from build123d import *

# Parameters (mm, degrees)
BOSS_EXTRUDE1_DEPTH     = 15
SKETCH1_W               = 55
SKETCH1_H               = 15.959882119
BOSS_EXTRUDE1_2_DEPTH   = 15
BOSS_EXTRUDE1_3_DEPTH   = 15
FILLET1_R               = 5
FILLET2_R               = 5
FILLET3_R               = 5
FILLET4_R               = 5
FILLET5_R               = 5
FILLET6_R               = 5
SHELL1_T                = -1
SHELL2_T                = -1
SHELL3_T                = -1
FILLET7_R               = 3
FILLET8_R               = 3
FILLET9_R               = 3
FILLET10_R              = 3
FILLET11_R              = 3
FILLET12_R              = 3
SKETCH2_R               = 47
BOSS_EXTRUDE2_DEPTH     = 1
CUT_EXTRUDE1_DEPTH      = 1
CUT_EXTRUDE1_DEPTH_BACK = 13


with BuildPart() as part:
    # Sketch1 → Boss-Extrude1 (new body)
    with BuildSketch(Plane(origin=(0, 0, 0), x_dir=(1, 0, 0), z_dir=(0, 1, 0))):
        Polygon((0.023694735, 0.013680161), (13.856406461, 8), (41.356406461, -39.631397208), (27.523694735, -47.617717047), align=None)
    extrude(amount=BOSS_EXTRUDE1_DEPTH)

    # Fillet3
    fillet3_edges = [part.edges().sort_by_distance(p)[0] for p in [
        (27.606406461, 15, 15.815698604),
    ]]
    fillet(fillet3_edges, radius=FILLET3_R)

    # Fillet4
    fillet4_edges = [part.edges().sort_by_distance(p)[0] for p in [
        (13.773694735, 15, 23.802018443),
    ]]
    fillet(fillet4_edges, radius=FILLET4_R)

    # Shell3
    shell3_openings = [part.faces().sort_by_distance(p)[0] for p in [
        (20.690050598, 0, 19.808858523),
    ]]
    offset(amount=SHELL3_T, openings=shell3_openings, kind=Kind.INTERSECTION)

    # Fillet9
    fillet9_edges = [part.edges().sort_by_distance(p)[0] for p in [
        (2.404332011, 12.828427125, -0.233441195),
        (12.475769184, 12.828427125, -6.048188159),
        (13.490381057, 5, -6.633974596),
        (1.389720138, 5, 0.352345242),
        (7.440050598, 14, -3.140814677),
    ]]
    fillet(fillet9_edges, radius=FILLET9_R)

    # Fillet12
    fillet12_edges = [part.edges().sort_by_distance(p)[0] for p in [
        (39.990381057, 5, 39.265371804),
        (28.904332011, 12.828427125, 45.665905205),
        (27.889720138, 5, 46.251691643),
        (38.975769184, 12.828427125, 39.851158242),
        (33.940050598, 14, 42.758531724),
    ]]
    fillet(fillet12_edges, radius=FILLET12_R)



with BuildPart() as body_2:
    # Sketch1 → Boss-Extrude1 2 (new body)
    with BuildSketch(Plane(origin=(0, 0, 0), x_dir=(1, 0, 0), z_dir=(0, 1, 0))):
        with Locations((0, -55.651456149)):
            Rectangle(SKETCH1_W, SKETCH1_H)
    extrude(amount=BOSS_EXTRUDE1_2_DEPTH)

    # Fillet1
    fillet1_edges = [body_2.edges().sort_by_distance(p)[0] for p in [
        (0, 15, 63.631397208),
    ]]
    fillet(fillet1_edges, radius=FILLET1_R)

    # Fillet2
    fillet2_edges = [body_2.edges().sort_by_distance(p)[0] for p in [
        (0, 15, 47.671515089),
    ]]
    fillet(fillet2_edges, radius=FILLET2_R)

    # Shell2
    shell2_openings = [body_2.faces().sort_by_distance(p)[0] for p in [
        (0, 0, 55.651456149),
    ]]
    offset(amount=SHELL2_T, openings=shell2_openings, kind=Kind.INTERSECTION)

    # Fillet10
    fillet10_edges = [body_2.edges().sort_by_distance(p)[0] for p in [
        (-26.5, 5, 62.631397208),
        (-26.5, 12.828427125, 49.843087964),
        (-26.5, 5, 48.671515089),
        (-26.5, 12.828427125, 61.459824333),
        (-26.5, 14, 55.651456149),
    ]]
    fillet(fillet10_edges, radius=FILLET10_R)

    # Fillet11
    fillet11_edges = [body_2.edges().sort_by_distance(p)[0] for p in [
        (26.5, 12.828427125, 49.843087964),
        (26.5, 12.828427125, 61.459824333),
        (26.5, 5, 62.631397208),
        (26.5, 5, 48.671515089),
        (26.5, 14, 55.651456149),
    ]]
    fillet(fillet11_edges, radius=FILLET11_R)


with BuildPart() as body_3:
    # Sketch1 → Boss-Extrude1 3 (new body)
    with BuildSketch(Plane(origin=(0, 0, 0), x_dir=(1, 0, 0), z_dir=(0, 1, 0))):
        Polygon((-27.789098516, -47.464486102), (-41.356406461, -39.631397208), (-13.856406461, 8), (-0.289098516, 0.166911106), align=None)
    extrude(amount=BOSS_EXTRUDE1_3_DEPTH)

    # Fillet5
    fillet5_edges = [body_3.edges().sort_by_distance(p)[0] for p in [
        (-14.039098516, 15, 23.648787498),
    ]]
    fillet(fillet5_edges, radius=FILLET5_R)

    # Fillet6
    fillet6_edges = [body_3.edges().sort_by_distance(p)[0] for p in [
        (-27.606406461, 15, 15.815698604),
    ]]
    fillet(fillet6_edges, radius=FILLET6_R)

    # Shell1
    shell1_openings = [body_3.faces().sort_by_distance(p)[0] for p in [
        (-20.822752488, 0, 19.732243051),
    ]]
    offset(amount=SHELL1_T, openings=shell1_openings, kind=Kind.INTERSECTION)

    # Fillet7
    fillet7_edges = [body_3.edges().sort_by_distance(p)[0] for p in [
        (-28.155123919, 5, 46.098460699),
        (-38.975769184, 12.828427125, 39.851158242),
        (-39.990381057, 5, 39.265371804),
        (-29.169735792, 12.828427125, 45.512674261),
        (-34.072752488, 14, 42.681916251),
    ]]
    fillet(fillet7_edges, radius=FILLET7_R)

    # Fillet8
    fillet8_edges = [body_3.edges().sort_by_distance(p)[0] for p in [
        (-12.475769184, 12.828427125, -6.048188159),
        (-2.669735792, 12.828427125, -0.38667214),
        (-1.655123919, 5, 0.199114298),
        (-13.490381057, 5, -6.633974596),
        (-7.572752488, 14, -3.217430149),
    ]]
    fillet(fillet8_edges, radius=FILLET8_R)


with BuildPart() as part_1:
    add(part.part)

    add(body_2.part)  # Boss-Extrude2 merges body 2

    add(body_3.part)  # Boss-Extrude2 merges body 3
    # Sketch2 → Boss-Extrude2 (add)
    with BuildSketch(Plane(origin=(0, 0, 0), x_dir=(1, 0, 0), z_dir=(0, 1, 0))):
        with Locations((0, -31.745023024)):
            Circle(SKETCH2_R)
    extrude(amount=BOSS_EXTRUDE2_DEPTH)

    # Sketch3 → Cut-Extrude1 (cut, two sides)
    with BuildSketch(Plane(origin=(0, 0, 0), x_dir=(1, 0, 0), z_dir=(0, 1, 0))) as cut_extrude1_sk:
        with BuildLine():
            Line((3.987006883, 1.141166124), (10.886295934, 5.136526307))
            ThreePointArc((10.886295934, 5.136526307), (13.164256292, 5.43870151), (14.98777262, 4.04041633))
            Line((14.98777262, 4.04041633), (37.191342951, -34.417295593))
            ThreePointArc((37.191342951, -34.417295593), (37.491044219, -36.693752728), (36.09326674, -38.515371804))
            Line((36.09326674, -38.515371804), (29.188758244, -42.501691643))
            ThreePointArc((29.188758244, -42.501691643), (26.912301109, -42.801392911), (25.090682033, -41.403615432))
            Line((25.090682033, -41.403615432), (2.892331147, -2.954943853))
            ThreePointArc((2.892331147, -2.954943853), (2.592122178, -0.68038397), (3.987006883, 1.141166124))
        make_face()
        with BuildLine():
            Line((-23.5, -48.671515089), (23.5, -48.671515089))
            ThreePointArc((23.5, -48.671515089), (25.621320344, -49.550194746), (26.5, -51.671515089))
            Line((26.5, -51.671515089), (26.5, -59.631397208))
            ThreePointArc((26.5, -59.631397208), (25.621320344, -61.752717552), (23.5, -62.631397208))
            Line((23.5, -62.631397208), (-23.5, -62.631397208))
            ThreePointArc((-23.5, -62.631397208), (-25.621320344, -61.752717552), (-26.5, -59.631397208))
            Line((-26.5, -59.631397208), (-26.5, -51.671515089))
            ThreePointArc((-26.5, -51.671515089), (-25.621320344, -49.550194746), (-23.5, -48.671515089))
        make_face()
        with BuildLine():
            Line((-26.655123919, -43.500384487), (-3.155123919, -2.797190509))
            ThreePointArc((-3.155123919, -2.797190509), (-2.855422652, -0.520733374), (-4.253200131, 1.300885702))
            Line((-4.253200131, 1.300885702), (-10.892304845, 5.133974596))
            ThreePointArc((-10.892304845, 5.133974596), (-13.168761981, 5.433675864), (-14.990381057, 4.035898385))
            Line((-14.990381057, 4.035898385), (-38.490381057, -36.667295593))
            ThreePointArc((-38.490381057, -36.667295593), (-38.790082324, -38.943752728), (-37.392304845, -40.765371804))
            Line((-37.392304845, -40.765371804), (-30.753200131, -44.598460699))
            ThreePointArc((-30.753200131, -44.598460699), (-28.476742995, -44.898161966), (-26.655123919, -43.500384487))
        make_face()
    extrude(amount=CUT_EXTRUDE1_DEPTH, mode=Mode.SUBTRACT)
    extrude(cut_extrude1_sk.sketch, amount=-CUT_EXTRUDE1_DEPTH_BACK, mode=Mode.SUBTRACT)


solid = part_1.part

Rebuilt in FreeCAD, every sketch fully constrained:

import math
import FreeCAD as App
import Part
import Sketcher
Q = App.Units.Quantity


def edges_at(feature, points):
    """Names of the edges that pass closest to the given points."""
    edges = feature.Shape.Edges
    near = lambda p: min(range(len(edges)), key=lambda i: edges[i].distToShape(Part.Vertex(*p))[0])
    return sorted({f"Edge{near(p) + 1}" for p in points})


def faces_at(feature, points):
    """Names of the faces that lie closest to the given points."""
    faces = feature.Shape.Faces
    near = lambda p: min(range(len(faces)), key=lambda i: faces[i].distToShape(Part.Vertex(*p))[0])
    return sorted({f"Face{near(p) + 1}" for p in points})


def add_polygon(sketch, points):
    """Adds a closed chain of lines whose ends are joined by coincident constraints."""
    first, n = sketch.GeometryCount, len(points)
    for a, b in zip(points, points[1:] + points[:1]):
        sketch.addGeometry(Part.LineSegment(App.Vector(*a, 0), App.Vector(*b, 0)), False)
    for i in range(n):
        sketch.addConstraint(Sketcher.Constraint("Coincident", first + i, 2, first + (i + 1) % n, 1))

doc = App.newDocument("Part")
body = doc.addObject("PartDesign::Body", "Body")

sketch1 = body.newObject("Sketcher::SketchObject", "Sketch")
sketch1.AttachmentSupport = (doc.getObject("XZ_Plane"), [""])
sketch1.MapMode = "FlatFace"
add_polygon(sketch1, [(14, -8), (0, 0), (28, 48), (41, 40)])
sketch1.addConstraint(Sketcher.Constraint("Perpendicular", 0, 1))
sketch1.addConstraint(Sketcher.Constraint("Perpendicular", 1, 2))
sketch1.addConstraint(Sketcher.Constraint("Perpendicular", 2, 3))
sketch1.addConstraint(Sketcher.Constraint("Angle", 0, Q("150 deg")))
sketch1.addConstraint(Sketcher.Constraint("Distance", 1, 55.0))
sketch1.addConstraint(Sketcher.Constraint("DistanceY", 3, 2, -1, 1, 8.0))
sketch1.addConstraint(Sketcher.Constraint("Distance", 0, 15.97264))
sketch1.addConstraint(Sketcher.Constraint("DistanceX", -1, 1, 0, 2, 0.023695))
pad1 = body.newObject("PartDesign::Pad", "Pad")
pad1.Profile = sketch1
pad1.Length = 15
pad1.Reversed = True
doc.recompute()

fillet = body.newObject("PartDesign::Fillet", "Fillet")
fillet.Base = (pad1, edges_at(pad1, [(27.606, 15, 15.816)]))
fillet.Radius = 5
doc.recompute()

fillet2 = body.newObject("PartDesign::Fillet", "Fillet001")
fillet2.Base = (fillet, edges_at(fillet, [(13.774, 15, 23.802)]))
fillet2.Radius = 5
doc.recompute()

thickness = body.newObject("PartDesign::Thickness", "Thickness")
thickness.Base = (fillet2, faces_at(fillet2, [(20.69, 0, 19.809)]))
thickness.Value = 1
thickness.Reversed = True
thickness.Join = "Intersection"
doc.recompute()

fillet3 = body.newObject("PartDesign::Fillet", "Fillet002")
fillet3.Base = (thickness, edges_at(thickness, [
    (2.404, 12.828, -0.233),
    (12.476, 12.828, -6.048),
    (13.49, 5, -6.634),
    (1.39, 5, 0.352),
    (7.44, 14, -3.141),
]))
fillet3.Radius = 3
doc.recompute()

fillet4 = body.newObject("PartDesign::Fillet", "Fillet003")
fillet4.Base = (fillet3, edges_at(fillet3, [
    (39.99, 5, 39.265),
    (28.904, 12.828, 45.666),
    (27.89, 5, 46.252),
    (38.976, 12.828, 39.851),
    (33.94, 14, 42.759),
]))
fillet4.Radius = 3
body2 = doc.addObject("PartDesign::Body", "Body001")

sketch2 = body2.newObject("Sketcher::SketchObject", "Sketch001")
sketch2.AttachmentSupport = (doc.getObject("XZ_Plane001"), [""])
sketch2.MapMode = "FlatFace"
add_polygon(sketch2, [(-28, 48), (-28, 64), (28, 64), (28, 48)])
sketch2.addConstraint(Sketcher.Constraint("Vertical", 0))
sketch2.addConstraint(Sketcher.Constraint("Horizontal", 1))
sketch2.addConstraint(Sketcher.Constraint("Vertical", 2))
sketch2.addConstraint(Sketcher.Constraint("Horizontal", 3))
sketch2.addConstraint(Sketcher.Constraint("DistanceX", 1, 1, 1, 2, 55.0))
sketch2.addConstraint(Sketcher.Constraint("DistanceX", 0, 2, -1, 1, 27.5))
sketch2.addConstraint(Sketcher.Constraint("DistanceY", 0, 1, 0, 2, 15.959882))
sketch2.addConstraint(Sketcher.Constraint("DistanceY", -1, 1, 0, 2, 63.631397))
pad2 = body2.newObject("PartDesign::Pad", "Pad001")
pad2.Profile = sketch2
pad2.Length = 15
pad2.Reversed = True
doc.recompute()

fillet5 = body2.newObject("PartDesign::Fillet", "Fillet004")
fillet5.Base = (pad2, edges_at(pad2, [(0, 15, 63.631)]))
fillet5.Radius = 5
doc.recompute()

fillet6 = body2.newObject("PartDesign::Fillet", "Fillet005")
fillet6.Base = (fillet5, edges_at(fillet5, [(0, 15, 47.672)]))
fillet6.Radius = 5
doc.recompute()

thickness2 = body2.newObject("PartDesign::Thickness", "Thickness001")
thickness2.Base = (fillet6, faces_at(fillet6, [(0, 0, 55.651)]))
thickness2.Value = 1
thickness2.Reversed = True
thickness2.Join = "Intersection"
doc.recompute()

fillet7 = body2.newObject("PartDesign::Fillet", "Fillet006")
fillet7.Base = (thickness2, edges_at(thickness2, [
    (-26.5, 5, 62.631),
    (-26.5, 12.828, 49.843),
    (-26.5, 5, 48.672),
    (-26.5, 12.828, 61.46),
    (-26.5, 14, 55.651),
]))
fillet7.Radius = 3
doc.recompute()

fillet8 = body2.newObject("PartDesign::Fillet", "Fillet007")
fillet8.Base = (fillet7, edges_at(fillet7, [
    (26.5, 12.828, 49.843),
    (26.5, 12.828, 61.46),
    (26.5, 5, 62.631),
    (26.5, 5, 48.672),
    (26.5, 14, 55.651),
]))
fillet8.Radius = 3
body3 = doc.addObject("PartDesign::Body", "Body002")

sketch3 = body3.newObject("Sketcher::SketchObject", "Sketch002")
sketch3.AttachmentSupport = (doc.getObject("XZ_Plane002"), [""])
sketch3.MapMode = "FlatFace"
add_polygon(sketch3, [(-41, 40), (-28, 47), (0, 0), (-14, -8)])
sketch3.addConstraint(Sketcher.Constraint("Perpendicular", 0, 1))
sketch3.addConstraint(Sketcher.Constraint("Perpendicular", 1, 2))
sketch3.addConstraint(Sketcher.Constraint("Perpendicular", 2, 3))
sketch3.addConstraint(Sketcher.Constraint("Angle", 0, Q("30 deg")))
sketch3.addConstraint(Sketcher.Constraint("Distance", 1, 55.0))
sketch3.addConstraint(Sketcher.Constraint("DistanceY", 2, 2, -1, 1, 8.0))
sketch3.addConstraint(Sketcher.Constraint("DistanceX", 0, 2, -1, 1, 27.789099))
sketch3.addConstraint(Sketcher.Constraint("DistanceY", 1, 2, -1, 1, 0.166911))
pad3 = body3.newObject("PartDesign::Pad", "Pad002")
pad3.Profile = sketch3
pad3.Length = 15
pad3.Reversed = True
doc.recompute()

fillet9 = body3.newObject("PartDesign::Fillet", "Fillet008")
fillet9.Base = (pad3, edges_at(pad3, [(-14.039, 15, 23.649)]))
fillet9.Radius = 5
doc.recompute()

fillet10 = body3.newObject("PartDesign::Fillet", "Fillet009")
fillet10.Base = (fillet9, edges_at(fillet9, [(-27.606, 15, 15.816)]))
fillet10.Radius = 5
doc.recompute()

thickness3 = body3.newObject("PartDesign::Thickness", "Thickness002")
thickness3.Base = (fillet10, faces_at(fillet10, [(-20.823, 0, 19.732)]))
thickness3.Value = 1
thickness3.Reversed = True
thickness3.Join = "Intersection"
doc.recompute()

fillet11 = body3.newObject("PartDesign::Fillet", "Fillet010")
fillet11.Base = (thickness3, edges_at(thickness3, [
    (-28.155, 5, 46.098),
    (-38.976, 12.828, 39.851),
    (-39.99, 5, 39.265),
    (-29.17, 12.828, 45.513),
    (-34.073, 14, 42.682),
]))
fillet11.Radius = 3
doc.recompute()

fillet12 = body3.newObject("PartDesign::Fillet", "Fillet011")
fillet12.Base = (fillet11, edges_at(fillet11, [
    (-12.476, 12.828, -6.048),
    (-2.67, 12.828, -0.387),
    (-1.655, 5, 0.199),
    (-13.49, 5, -6.634),
    (-7.573, 14, -3.217),
]))
fillet12.Radius = 3
body.AllowCompound = True
doc.recompute()

boolean = body.newObject("PartDesign::Boolean", "Boolean")
boolean.Type = "Fuse"
boolean.addObjects([body2])
doc.recompute()

boolean2 = body.newObject("PartDesign::Boolean", "Boolean001")
boolean2.Type = "Fuse"
boolean2.addObjects([body3])

sketch4 = body.newObject("Sketcher::SketchObject", "Sketch003")
sketch4.AttachmentSupport = (doc.getObject("XZ_Plane"), [""])
sketch4.MapMode = "FlatFace"
sketch4.addGeometry(Part.Circle(App.Vector(0, 32, 0), App.Vector(0, 0, 1), 47), False)
sketch4.addConstraint(Sketcher.Constraint("PointOnObject", 0, 3, -2))
sketch4.addConstraint(Sketcher.Constraint("Diameter", 0, 94.0))
sketch4.addConstraint(Sketcher.Constraint("DistanceY", -1, 1, 0, 3, 31.745023))
pad4 = body.newObject("PartDesign::Pad", "Pad003")
pad4.Profile = sketch4
pad4.Length = 1
pad4.Reversed = True

sketch5 = body.newObject("Sketcher::SketchObject", "Sketch004")
sketch5.AttachmentSupport = (doc.getObject("XZ_Plane"), [""])
sketch5.MapMode = "FlatFace"
sketch5.addGeometry(Part.LineSegment(App.Vector(10.9, -5.1, 0), App.Vector(4, -1.1, 0)), False)
sketch5.addGeometry(Part.ArcOfCircle(Part.Circle(App.Vector(5.5, 1.5, 0), App.Vector(0, 0, 1), 3), math.radians(150), math.radians(240)), False)
sketch5.addGeometry(Part.LineSegment(App.Vector(2.9, 3, 0), App.Vector(25.1, 41.4, 0)), False)
sketch5.addGeometry(Part.ArcOfCircle(Part.Circle(App.Vector(27.7, 39.9, 0), App.Vector(0, 0, 1), 3), math.radians(60), math.radians(150)), False)
sketch5.addGeometry(Part.LineSegment(App.Vector(29.2, 42.5, 0), App.Vector(36.1, 38.5, 0)), False)
sketch5.addGeometry(Part.ArcOfCircle(Part.Circle(App.Vector(34.6, 35.9, 0), App.Vector(0, 0, 1), 3), math.radians(-30), math.radians(60)), False)
sketch5.addGeometry(Part.LineSegment(App.Vector(37.2, 34.4, 0), App.Vector(15, -4, 0)), False)
sketch5.addGeometry(Part.ArcOfCircle(Part.Circle(App.Vector(12.4, -2.5, 0), App.Vector(0, 0, 1), 3), math.radians(-120), math.radians(-30)), False)
sketch5.addGeometry(Part.LineSegment(App.Vector(23.5, 48.7, 0), App.Vector(-23.5, 48.7, 0)), False)
sketch5.addGeometry(Part.ArcOfCircle(Part.Circle(App.Vector(-23.5, 51.7, 0), App.Vector(0, 0, 1), 3), math.radians(180), math.radians(270)), False)
sketch5.addGeometry(Part.LineSegment(App.Vector(-26.5, 51.7, 0), App.Vector(-26.5, 59.6, 0)), False)
sketch5.addGeometry(Part.ArcOfCircle(Part.Circle(App.Vector(-23.5, 59.6, 0), App.Vector(0, 0, 1), 3), math.radians(90), math.radians(180)), False)
sketch5.addGeometry(Part.LineSegment(App.Vector(-23.5, 62.6, 0), App.Vector(23.5, 62.6, 0)), False)
sketch5.addGeometry(Part.ArcOfCircle(Part.Circle(App.Vector(23.5, 59.6, 0), App.Vector(0, 0, 1), 3), math.radians(0), math.radians(90)), False)
sketch5.addGeometry(Part.LineSegment(App.Vector(26.5, 59.6, 0), App.Vector(26.5, 51.7, 0)), False)
sketch5.addGeometry(Part.ArcOfCircle(Part.Circle(App.Vector(23.5, 51.7, 0), App.Vector(0, 0, 1), 3), math.radians(-90), math.radians(0)), False)
sketch5.addGeometry(Part.LineSegment(App.Vector(-26.7, 43.5, 0), App.Vector(-3.2, 2.8, 0)), False)
sketch5.addGeometry(Part.ArcOfCircle(Part.Circle(App.Vector(-5.8, 1.3, 0), App.Vector(0, 0, 1), 3), math.radians(-60), math.radians(30)), False)
sketch5.addGeometry(Part.LineSegment(App.Vector(-4.3, -1.3, 0), App.Vector(-10.9, -5.1, 0)), False)
sketch5.addGeometry(Part.ArcOfCircle(Part.Circle(App.Vector(-12.4, -2.5, 0), App.Vector(0, 0, 1), 3), math.radians(-150), math.radians(-60)), False)
sketch5.addGeometry(Part.LineSegment(App.Vector(-15, -4, 0), App.Vector(-38.5, 36.7, 0)), False)
sketch5.addGeometry(Part.ArcOfCircle(Part.Circle(App.Vector(-35.9, 38.2, 0), App.Vector(0, 0, 1), 3), math.radians(120), math.radians(210)), False)
sketch5.addGeometry(Part.LineSegment(App.Vector(-37.4, 40.8, 0), App.Vector(-30.8, 44.6, 0)), False)
sketch5.addGeometry(Part.ArcOfCircle(Part.Circle(App.Vector(-29.3, 42, 0), App.Vector(0, 0, 1), 3), math.radians(30), math.radians(120)), False)
sketch5.addConstraint(Sketcher.Constraint("Tangent", 0, 2, 1, 2))
sketch5.addConstraint(Sketcher.Constraint("Tangent", 1, 1, 2, 1))
sketch5.addConstraint(Sketcher.Constraint("Tangent", 2, 2, 3, 2))
sketch5.addConstraint(Sketcher.Constraint("Tangent", 3, 1, 4, 1))
sketch5.addConstraint(Sketcher.Constraint("Tangent", 4, 2, 5, 2))
sketch5.addConstraint(Sketcher.Constraint("Tangent", 5, 1, 6, 1))
sketch5.addConstraint(Sketcher.Constraint("Tangent", 6, 2, 7, 2))
sketch5.addConstraint(Sketcher.Constraint("Tangent", 7, 1, 0, 1))
sketch5.addConstraint(Sketcher.Constraint("Tangent", 8, 2, 9, 2))
sketch5.addConstraint(Sketcher.Constraint("Tangent", 9, 1, 10, 1))
sketch5.addConstraint(Sketcher.Constraint("Tangent", 10, 2, 11, 2))
sketch5.addConstraint(Sketcher.Constraint("Tangent", 11, 1, 12, 1))
sketch5.addConstraint(Sketcher.Constraint("Tangent", 12, 2, 13, 2))
sketch5.addConstraint(Sketcher.Constraint("Tangent", 13, 1, 14, 1))
sketch5.addConstraint(Sketcher.Constraint("Tangent", 14, 2, 15, 2))
sketch5.addConstraint(Sketcher.Constraint("Tangent", 15, 1, 8, 1))
sketch5.addConstraint(Sketcher.Constraint("Tangent", 16, 2, 17, 2))
sketch5.addConstraint(Sketcher.Constraint("Tangent", 17, 1, 18, 1))
sketch5.addConstraint(Sketcher.Constraint("Tangent", 18, 2, 19, 2))
sketch5.addConstraint(Sketcher.Constraint("Tangent", 19, 1, 20, 1))
sketch5.addConstraint(Sketcher.Constraint("Tangent", 20, 2, 21, 2))
sketch5.addConstraint(Sketcher.Constraint("Tangent", 21, 1, 22, 1))
sketch5.addConstraint(Sketcher.Constraint("Tangent", 22, 2, 23, 2))
sketch5.addConstraint(Sketcher.Constraint("Tangent", 23, 1, 16, 1))
sketch5.addConstraint(Sketcher.Constraint("Horizontal", 8))
sketch5.addConstraint(Sketcher.Constraint("Vertical", 10))
sketch5.addConstraint(Sketcher.Constraint("Horizontal", 12))
sketch5.addConstraint(Sketcher.Constraint("Vertical", 14))
sketch5.addConstraint(Sketcher.Constraint("Equal", 1, 3))
sketch5.addConstraint(Sketcher.Constraint("Equal", 3, 5))
sketch5.addConstraint(Sketcher.Constraint("Equal", 5, 7))
sketch5.addConstraint(Sketcher.Constraint("Equal", 7, 9))
sketch5.addConstraint(Sketcher.Constraint("Equal", 9, 11))
sketch5.addConstraint(Sketcher.Constraint("Equal", 11, 13))
sketch5.addConstraint(Sketcher.Constraint("Equal", 13, 15))
sketch5.addConstraint(Sketcher.Constraint("Equal", 15, 17))
sketch5.addConstraint(Sketcher.Constraint("Equal", 17, 19))
sketch5.addConstraint(Sketcher.Constraint("Equal", 19, 21))
sketch5.addConstraint(Sketcher.Constraint("Equal", 21, 23))
sketch5.addConstraint(Sketcher.Constraint("Perpendicular", 2, 4))
sketch5.addConstraint(Sketcher.Constraint("Perpendicular", 4, 6))
sketch5.addConstraint(Sketcher.Constraint("Perpendicular", 16, 18))
sketch5.addConstraint(Sketcher.Constraint("Perpendicular", 18, 20))
sketch5.addConstraint(Sketcher.Constraint("Perpendicular", 20, 22))
sketch5.addConstraint(Sketcher.Constraint("Radius", 1, 3.0))
sketch5.addConstraint(Sketcher.Constraint("DistanceX", 8, 2, 8, 1, 47.0))
sketch5.addConstraint(Sketcher.Constraint("Angle", 2, Q("60 deg")))
sketch5.addConstraint(Sketcher.Constraint("Angle", 16, Q("-60 deg")))
sketch5.addConstraint(Sketcher.Constraint("Distance", 16, 47.0))
sketch5.addConstraint(Sketcher.Constraint("DistanceX", 9, 3, -1, 1, 23.5))
sketch5.addConstraint(Sketcher.Constraint("DistanceX", 19, 3, 7, 3, 24.782001))
sketch5.addConstraint(Sketcher.Constraint("Distance", 2, 44.396702))
sketch5.addConstraint(Sketcher.Constraint("DistanceX", 17, 3, -1, 1, 5.7532))
sketch5.addConstraint(Sketcher.Constraint("DistanceY", 19, 3, -1, 1, 2.535898))
sketch5.addConstraint(Sketcher.Constraint("DistanceY", 3, 3, 9, 3, 11.7679))
sketch5.addConstraint(Sketcher.Constraint("DistanceY", 5, 3, 11, 3, 23.714102))
sketch5.addConstraint(Sketcher.Constraint("DistanceY", 21, 3, 11, 3, 21.464102))
sketch5.addConstraint(Sketcher.Constraint("DistanceX", 0, 2, 1, 3, 1.5034))
sketch5.addConstraint(Sketcher.Constraint("Distance", 4, 7.97264))
sketch5.addConstraint(Sketcher.Constraint("DistanceX", -1, 1, 3, 3, 27.688758))
pocket1 = body.newObject("PartDesign::Pocket", "Pocket")
pocket1.Profile = sketch5
pocket1.Type = "TwoLengths"
pocket1.Length = 1
pocket1.Length2 = 13

doc.recompute()
